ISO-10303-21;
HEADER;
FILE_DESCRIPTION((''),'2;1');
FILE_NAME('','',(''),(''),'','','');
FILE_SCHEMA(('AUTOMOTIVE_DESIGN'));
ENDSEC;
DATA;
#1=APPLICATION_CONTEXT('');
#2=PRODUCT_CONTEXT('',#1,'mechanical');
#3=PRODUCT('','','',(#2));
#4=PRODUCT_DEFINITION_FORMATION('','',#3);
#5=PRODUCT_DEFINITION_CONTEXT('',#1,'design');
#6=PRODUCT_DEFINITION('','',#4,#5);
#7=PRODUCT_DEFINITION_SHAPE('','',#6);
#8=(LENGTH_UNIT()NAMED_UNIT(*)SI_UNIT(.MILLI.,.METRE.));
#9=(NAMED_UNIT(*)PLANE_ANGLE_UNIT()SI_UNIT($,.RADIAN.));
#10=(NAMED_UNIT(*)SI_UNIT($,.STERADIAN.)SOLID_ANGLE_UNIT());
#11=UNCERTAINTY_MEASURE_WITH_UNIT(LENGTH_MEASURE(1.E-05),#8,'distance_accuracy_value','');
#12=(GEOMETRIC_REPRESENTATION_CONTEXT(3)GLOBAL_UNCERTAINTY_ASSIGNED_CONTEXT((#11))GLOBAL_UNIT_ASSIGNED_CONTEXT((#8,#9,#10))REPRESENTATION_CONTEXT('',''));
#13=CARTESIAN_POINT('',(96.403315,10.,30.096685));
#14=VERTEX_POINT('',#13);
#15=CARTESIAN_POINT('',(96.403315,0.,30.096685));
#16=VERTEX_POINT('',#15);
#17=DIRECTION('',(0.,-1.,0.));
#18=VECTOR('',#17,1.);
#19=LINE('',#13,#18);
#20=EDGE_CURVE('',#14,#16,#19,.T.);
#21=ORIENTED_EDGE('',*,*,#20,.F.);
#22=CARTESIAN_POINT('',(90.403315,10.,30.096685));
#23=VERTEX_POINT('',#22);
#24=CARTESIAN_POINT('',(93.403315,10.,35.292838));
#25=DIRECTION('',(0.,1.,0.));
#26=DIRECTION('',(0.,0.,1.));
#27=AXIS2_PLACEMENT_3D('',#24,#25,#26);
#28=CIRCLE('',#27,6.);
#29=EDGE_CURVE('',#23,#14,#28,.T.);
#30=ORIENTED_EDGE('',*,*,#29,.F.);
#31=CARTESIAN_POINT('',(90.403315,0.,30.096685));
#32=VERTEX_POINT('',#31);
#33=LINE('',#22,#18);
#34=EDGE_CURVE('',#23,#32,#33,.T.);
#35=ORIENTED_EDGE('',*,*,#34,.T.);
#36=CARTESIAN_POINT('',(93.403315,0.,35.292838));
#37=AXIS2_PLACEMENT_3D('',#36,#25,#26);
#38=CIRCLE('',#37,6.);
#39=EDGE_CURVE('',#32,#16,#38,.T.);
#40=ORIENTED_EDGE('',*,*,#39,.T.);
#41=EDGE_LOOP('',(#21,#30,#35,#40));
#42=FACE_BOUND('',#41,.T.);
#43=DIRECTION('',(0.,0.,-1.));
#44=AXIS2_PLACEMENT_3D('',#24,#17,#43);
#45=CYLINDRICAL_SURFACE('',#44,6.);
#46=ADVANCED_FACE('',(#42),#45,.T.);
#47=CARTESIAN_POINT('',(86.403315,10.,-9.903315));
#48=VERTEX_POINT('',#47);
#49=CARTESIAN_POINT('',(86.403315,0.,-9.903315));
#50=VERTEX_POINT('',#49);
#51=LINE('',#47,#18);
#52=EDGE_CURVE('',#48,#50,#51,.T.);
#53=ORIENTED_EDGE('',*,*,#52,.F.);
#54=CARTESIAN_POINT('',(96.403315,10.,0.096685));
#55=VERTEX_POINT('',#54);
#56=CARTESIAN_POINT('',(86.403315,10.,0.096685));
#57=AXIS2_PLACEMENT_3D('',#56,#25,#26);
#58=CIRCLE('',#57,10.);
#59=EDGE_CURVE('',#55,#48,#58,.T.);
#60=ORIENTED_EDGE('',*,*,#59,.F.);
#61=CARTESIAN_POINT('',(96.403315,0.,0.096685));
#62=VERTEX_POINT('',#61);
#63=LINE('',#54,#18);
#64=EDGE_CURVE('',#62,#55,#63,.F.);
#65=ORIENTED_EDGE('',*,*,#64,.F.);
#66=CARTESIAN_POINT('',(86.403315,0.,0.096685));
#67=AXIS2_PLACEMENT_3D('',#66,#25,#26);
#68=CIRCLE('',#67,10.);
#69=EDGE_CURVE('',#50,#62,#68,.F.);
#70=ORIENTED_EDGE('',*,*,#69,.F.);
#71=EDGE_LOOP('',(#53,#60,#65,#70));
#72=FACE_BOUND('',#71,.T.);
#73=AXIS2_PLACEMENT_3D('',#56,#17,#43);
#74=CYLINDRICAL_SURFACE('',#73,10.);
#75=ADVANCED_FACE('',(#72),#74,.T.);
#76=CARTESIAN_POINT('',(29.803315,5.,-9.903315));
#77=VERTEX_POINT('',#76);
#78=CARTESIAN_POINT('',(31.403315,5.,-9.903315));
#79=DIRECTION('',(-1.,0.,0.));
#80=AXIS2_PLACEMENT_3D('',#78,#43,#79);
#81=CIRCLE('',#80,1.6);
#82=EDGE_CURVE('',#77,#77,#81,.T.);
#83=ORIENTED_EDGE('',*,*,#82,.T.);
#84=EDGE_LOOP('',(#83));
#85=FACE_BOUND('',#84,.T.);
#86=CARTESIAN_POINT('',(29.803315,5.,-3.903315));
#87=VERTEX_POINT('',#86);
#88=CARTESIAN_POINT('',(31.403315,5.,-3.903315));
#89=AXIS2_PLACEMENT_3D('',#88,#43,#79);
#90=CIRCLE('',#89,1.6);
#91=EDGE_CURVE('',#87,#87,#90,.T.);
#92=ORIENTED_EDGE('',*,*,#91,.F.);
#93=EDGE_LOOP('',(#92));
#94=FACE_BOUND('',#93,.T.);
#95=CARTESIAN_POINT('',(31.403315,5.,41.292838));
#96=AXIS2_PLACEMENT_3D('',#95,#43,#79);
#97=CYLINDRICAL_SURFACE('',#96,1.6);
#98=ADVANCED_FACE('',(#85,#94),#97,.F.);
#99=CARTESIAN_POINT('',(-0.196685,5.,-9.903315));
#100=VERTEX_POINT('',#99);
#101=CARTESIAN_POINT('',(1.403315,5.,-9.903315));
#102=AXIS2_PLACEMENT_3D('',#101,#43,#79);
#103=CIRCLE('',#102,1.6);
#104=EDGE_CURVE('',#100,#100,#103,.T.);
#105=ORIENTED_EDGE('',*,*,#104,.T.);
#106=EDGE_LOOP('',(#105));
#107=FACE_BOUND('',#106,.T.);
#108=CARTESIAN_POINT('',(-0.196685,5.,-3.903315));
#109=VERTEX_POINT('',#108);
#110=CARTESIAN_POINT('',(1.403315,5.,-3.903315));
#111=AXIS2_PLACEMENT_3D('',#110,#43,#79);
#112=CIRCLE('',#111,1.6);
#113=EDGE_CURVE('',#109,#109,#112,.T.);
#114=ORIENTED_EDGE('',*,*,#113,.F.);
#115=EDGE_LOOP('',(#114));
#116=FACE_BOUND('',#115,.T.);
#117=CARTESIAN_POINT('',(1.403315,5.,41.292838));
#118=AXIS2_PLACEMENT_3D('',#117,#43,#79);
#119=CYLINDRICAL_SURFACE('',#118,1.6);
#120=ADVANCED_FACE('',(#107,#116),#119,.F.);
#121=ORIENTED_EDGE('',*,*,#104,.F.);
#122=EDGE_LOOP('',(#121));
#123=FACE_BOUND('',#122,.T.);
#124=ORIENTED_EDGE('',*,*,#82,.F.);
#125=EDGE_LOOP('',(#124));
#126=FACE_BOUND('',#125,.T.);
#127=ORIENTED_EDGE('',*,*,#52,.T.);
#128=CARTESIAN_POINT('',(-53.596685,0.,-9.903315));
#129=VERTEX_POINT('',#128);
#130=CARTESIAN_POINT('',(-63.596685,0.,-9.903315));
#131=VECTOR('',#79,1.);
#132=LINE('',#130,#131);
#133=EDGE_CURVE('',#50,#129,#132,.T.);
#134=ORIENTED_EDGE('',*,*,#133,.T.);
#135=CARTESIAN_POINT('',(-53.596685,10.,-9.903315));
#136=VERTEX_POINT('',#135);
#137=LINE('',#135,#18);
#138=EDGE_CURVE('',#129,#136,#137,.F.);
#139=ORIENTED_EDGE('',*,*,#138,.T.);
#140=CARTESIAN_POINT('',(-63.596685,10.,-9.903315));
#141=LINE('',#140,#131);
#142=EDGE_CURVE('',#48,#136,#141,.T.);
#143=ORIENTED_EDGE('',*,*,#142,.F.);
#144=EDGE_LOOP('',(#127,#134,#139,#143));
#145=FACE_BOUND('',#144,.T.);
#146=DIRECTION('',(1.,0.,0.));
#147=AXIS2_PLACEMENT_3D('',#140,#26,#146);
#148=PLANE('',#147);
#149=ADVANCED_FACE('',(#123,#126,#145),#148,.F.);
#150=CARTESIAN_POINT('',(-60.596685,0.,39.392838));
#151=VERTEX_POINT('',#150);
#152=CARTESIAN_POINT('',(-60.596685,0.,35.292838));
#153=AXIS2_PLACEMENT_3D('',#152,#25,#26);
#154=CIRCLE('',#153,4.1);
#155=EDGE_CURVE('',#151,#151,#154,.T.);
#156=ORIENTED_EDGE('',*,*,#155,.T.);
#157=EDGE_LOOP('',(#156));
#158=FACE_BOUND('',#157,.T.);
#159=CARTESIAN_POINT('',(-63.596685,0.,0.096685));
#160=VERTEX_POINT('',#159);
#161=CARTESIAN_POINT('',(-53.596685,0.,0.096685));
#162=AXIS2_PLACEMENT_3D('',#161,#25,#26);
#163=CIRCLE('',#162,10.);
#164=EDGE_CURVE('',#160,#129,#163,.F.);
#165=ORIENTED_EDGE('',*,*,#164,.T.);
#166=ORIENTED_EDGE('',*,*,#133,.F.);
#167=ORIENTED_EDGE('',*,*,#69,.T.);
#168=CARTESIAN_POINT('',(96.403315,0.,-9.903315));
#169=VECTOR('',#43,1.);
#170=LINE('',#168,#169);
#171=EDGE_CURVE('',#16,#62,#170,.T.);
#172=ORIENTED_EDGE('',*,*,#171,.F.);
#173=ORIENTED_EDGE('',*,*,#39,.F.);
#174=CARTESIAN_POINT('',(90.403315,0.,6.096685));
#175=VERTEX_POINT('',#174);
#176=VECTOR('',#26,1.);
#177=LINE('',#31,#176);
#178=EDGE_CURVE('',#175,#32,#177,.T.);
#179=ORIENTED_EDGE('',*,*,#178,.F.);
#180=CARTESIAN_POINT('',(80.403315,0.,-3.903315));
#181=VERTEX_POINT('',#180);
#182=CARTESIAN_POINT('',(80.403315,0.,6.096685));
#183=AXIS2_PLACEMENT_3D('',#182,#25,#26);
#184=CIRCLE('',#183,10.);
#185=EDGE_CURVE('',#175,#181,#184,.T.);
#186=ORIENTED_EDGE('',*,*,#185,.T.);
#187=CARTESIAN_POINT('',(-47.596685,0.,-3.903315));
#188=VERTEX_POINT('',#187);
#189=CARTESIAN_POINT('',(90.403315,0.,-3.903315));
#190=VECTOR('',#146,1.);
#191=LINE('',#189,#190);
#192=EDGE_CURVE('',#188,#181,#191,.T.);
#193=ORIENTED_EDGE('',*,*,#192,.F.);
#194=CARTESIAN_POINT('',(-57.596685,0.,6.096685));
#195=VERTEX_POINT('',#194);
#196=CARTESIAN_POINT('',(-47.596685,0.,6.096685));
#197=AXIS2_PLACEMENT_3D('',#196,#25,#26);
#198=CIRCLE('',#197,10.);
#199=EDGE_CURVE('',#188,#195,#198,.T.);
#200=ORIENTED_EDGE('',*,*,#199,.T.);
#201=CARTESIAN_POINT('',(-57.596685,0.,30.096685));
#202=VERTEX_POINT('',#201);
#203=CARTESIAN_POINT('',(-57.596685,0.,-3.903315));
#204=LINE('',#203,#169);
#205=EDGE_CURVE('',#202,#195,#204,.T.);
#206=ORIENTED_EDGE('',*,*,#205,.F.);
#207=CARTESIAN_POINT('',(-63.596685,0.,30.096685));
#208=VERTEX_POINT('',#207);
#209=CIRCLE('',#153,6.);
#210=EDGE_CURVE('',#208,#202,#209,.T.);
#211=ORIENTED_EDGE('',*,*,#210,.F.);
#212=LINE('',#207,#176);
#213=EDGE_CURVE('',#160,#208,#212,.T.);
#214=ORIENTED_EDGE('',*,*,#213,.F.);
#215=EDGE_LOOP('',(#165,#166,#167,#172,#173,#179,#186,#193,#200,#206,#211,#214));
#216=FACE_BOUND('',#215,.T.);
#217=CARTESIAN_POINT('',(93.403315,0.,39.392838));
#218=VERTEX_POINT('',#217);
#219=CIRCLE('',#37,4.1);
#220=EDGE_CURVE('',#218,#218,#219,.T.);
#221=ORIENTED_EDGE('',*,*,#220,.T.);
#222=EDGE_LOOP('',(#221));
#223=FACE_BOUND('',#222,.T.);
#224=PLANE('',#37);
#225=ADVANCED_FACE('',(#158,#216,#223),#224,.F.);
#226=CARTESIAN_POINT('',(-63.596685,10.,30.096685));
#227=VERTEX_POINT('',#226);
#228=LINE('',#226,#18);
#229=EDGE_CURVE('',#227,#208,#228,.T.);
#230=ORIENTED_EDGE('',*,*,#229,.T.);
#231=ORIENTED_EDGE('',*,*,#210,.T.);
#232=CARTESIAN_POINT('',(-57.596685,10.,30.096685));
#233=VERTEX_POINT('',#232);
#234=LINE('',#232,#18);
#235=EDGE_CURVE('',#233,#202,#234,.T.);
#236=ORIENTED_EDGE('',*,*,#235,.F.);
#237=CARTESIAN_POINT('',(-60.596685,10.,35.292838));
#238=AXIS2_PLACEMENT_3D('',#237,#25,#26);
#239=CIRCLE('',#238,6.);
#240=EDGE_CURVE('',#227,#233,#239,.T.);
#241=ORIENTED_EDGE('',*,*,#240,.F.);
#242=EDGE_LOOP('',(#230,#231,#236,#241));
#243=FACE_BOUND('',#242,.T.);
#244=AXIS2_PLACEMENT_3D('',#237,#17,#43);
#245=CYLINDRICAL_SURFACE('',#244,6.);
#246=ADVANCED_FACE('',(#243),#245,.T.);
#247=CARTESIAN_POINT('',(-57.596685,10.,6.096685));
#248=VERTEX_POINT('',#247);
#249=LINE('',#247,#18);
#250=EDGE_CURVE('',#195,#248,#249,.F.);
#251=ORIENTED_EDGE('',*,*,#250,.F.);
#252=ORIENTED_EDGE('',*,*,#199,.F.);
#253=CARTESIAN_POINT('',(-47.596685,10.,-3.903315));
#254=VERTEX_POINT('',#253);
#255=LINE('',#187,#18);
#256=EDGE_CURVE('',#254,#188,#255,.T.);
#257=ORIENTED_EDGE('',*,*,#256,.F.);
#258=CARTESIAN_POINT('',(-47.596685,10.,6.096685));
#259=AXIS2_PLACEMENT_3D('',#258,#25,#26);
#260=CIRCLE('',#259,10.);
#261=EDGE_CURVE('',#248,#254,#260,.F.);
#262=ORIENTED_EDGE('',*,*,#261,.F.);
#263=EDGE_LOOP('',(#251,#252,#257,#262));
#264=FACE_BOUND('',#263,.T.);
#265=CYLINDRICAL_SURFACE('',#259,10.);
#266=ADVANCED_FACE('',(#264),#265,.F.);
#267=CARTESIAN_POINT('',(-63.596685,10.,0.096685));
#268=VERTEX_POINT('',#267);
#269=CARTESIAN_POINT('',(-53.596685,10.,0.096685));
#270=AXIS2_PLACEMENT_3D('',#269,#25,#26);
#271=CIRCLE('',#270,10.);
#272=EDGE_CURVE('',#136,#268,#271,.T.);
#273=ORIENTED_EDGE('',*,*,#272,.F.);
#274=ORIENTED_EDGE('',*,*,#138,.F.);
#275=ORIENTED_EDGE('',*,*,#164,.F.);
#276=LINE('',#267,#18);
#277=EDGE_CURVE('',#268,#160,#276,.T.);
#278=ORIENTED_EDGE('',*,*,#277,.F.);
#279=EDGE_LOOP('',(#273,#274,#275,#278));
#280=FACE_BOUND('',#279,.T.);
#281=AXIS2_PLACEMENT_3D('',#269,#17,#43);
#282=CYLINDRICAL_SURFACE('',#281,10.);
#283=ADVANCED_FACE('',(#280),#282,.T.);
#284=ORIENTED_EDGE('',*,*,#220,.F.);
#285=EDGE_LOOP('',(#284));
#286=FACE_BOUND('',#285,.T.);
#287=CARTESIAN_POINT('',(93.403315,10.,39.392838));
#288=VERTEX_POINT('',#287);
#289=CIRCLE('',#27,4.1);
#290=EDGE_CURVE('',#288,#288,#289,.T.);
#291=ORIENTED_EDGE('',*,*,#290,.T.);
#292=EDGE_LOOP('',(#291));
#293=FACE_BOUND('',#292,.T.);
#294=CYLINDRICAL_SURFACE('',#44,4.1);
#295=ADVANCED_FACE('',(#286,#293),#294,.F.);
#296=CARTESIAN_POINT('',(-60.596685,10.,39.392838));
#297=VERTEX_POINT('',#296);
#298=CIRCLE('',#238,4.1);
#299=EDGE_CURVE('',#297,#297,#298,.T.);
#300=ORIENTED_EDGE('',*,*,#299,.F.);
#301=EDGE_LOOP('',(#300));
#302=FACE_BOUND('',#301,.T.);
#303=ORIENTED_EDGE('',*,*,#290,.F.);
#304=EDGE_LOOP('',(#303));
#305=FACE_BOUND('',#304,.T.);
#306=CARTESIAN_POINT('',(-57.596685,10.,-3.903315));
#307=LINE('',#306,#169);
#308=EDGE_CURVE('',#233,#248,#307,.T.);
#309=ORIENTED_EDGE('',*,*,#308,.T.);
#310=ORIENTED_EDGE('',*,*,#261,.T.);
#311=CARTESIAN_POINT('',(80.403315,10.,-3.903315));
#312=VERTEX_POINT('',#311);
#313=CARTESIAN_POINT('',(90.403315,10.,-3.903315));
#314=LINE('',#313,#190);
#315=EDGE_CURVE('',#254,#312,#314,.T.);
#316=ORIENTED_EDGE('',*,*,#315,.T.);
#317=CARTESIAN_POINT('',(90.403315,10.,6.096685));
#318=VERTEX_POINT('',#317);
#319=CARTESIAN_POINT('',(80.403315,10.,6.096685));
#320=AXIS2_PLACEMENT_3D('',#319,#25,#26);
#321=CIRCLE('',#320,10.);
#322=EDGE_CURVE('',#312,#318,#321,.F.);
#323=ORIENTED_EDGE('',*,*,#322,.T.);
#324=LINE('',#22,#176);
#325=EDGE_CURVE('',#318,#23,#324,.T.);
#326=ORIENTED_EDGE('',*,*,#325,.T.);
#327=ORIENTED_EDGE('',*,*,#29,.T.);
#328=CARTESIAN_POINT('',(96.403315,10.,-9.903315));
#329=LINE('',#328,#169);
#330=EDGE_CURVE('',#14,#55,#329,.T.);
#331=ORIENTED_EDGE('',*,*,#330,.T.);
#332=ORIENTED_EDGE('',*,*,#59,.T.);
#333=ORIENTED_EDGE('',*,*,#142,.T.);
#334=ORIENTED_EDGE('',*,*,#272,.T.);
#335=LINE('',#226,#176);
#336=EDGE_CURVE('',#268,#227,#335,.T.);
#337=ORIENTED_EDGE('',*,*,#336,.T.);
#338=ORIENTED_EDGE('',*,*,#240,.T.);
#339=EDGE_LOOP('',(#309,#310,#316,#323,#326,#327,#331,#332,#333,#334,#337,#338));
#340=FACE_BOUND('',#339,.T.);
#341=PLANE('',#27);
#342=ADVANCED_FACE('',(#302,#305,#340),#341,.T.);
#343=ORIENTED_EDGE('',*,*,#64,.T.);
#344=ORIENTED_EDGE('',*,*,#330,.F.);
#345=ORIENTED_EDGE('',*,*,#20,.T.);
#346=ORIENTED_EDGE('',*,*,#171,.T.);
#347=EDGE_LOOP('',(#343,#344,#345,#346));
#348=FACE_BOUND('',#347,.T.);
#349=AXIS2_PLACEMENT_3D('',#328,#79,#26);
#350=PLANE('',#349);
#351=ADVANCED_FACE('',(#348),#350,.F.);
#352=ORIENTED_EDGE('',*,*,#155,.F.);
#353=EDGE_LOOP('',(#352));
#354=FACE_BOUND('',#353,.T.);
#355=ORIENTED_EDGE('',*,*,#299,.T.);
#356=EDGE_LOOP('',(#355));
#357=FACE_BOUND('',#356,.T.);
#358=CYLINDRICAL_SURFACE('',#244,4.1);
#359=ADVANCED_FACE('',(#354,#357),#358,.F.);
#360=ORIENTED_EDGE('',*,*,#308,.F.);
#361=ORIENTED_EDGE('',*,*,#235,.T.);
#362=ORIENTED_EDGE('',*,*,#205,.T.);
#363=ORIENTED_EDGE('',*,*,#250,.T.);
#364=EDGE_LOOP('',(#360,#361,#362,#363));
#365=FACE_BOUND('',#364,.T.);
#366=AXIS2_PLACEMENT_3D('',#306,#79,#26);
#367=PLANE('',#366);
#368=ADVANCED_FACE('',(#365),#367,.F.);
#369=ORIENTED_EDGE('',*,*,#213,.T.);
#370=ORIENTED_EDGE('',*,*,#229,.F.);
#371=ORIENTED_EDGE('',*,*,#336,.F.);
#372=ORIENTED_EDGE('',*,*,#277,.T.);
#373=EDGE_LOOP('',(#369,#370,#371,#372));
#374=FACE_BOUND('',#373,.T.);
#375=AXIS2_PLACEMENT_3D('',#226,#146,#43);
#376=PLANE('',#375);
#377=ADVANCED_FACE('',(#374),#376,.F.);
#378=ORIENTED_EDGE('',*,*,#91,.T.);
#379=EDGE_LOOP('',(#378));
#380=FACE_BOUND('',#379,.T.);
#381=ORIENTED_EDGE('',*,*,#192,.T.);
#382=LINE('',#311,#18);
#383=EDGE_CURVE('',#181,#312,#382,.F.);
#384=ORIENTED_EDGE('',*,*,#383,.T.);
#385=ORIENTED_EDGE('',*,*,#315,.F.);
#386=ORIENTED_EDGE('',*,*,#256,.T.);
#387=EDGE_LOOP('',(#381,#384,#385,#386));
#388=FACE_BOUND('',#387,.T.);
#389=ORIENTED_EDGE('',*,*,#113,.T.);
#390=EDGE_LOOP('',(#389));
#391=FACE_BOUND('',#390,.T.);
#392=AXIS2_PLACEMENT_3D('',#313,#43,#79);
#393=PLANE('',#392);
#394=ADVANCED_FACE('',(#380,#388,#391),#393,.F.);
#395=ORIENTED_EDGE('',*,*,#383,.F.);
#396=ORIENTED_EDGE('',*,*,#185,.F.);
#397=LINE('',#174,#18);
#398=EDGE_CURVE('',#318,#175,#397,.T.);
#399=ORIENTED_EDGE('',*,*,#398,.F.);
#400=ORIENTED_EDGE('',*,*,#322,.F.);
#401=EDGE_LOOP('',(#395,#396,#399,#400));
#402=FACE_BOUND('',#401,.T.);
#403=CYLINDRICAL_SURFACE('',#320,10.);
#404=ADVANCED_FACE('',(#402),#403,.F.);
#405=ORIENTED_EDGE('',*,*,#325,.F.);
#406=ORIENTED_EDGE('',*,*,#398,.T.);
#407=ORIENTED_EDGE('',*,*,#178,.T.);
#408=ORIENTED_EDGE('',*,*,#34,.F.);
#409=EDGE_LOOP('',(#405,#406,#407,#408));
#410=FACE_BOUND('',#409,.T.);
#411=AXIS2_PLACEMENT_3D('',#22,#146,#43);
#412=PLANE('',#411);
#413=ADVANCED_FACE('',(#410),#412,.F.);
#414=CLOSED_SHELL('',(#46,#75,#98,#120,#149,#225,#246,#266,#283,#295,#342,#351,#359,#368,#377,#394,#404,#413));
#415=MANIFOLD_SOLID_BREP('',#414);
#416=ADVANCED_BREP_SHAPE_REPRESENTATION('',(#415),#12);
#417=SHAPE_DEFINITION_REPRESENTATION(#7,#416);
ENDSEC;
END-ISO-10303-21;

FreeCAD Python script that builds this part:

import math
import FreeCAD as App
import Part
import Sketcher
from FreeCAD import Vector
Q = App.Units.Quantity


def edges_at(feature, points):
    """Names of the edges that pass closest to the given points."""
    edges = feature.Shape.Edges
    near = lambda p: min(range(len(edges)), key=lambda i: edges[i].distToShape(Part.Vertex(*p))[0])
    return sorted({f"Edge{near(p) + 1}" for p in points})

doc = App.newDocument("Part")
params = doc.addObject("Spreadsheet::Sheet", "Params")
for row, (alias, value) in enumerate([
    ("sketch1_radius", "6 mm"),
    ("sketch1_diameter", "8.2 mm"),
    ("sketch1_width", "160 mm"),
    ("sketch1_width2", "148 mm"),
    ("sketch1_height", "40 mm"),
    ("pad1_length", "10 mm"),
    ("sketch2_diameter", "3.2 mm"),
    ("fillet_radius", "10 mm"),
], start=1):
    params.set(f"A{row}", alias)
    params.set(f"B{row}", "=" + value)
    params.setAlias(f"B{row}", alias)

body = doc.addObject("PartDesign::Body", "Body")

sketch1 = body.newObject("Sketcher::SketchObject", "Sketch")
sketch1.AttachmentSupport = (doc.getObject("XZ_Plane"), [""])
sketch1.MapMode = "FlatFace"
sketch1.addGeometry(Part.LineSegment(Vector(96.403315, -9.903315, 0), Vector(-63.596685, -9.903315, 0)), False)
sketch1.addGeometry(Part.LineSegment(Vector(-63.596685, -9.903315, 0), Vector(-63.596685, 30.096685, 0)), False)
sketch1.addGeometry(Part.ArcOfCircle(Part.Circle(Vector(-60.596685, 35.292838, 0), Vector(0, 0, 1), 6), math.radians(-60), math.radians(240)), False)
sketch1.addGeometry(Part.LineSegment(Vector(-57.596685, 30.096685, 0), Vector(-57.596685, -3.903315, 0)), False)
sketch1.addGeometry(Part.LineSegment(Vector(-57.596685, -3.903315, 0), Vector(90.403315, -3.903315, 0)), False)
sketch1.addGeometry(Part.LineSegment(Vector(90.403315, -3.903315, 0), Vector(90.403315, 30.096685, 0)), False)
sketch1.addGeometry(Part.ArcOfCircle(Part.Circle(Vector(93.403315, 35.292838, 0), Vector(0, 0, 1), 6), math.radians(-60), math.radians(240)), False)
sketch1.addGeometry(Part.LineSegment(Vector(96.403315, 30.096685, 0), Vector(96.403315, -9.903315, 0)), False)
sketch1.addGeometry(Part.Circle(Vector(93.403315, 35.292838, 0), Vector(0, 0, 1), 4.1), False)
sketch1.addGeometry(Part.Circle(Vector(-60.596685, 35.292838, 0), Vector(0, 0, 1), 4.1), False)
sketch1.addConstraint(Sketcher.Constraint("Coincident", 0, 2, 1, 1))
sketch1.addConstraint(Sketcher.Constraint("Coincident", 1, 2, 2, 2))
sketch1.addConstraint(Sketcher.Constraint("Coincident", 2, 1, 3, 1))
sketch1.addConstraint(Sketcher.Constraint("Coincident", 3, 2, 4, 1))
sketch1.addConstraint(Sketcher.Constraint("Coincident", 4, 2, 5, 1))
sketch1.addConstraint(Sketcher.Constraint("Coincident", 5, 2, 6, 2))
sketch1.addConstraint(Sketcher.Constraint("Coincident", 6, 1, 7, 1))
sketch1.addConstraint(Sketcher.Constraint("Coincident", 7, 2, 0, 1))
sketch1.addConstraint(Sketcher.Constraint("Horizontal", 0))
sketch1.addConstraint(Sketcher.Constraint("Vertical", 1))
sketch1.addConstraint(Sketcher.Constraint("Vertical", 3))
sketch1.addConstraint(Sketcher.Constraint("Horizontal", 4))
sketch1.addConstraint(Sketcher.Constraint("Vertical", 5))
sketch1.addConstraint(Sketcher.Constraint("Vertical", 7))
sketch1.addConstraint(Sketcher.Constraint("Coincident", 8, 3, 6, 3))
sketch1.addConstraint(Sketcher.Constraint("Coincident", 9, 3, 2, 3))
sketch1.addConstraint(Sketcher.Constraint("Equal", 2, 6))
sketch1.addConstraint(Sketcher.Constraint("Equal", 8, 9))
sketch1.addConstraint(Sketcher.Constraint("Horizontal", 2, 3, 6, 3))
sketch1.addConstraint(Sketcher.Constraint("Horizontal", 1, 2, 2, 1))
sketch1.addConstraint(Sketcher.Constraint("Horizontal", 2, 1, 5, 2))
sketch1.addConstraint(Sketcher.Constraint("Horizontal", 5, 2, 6, 1))
sketch1.addConstraint(Sketcher.Constraint("Radius", 2, Q("6 mm")))
sketch1.addConstraint(Sketcher.Constraint("Diameter", 8, Q("8.2 mm")))
sketch1.addConstraint(Sketcher.Constraint("DistanceX", 0, 2, 0, 1, Q("160 mm")))
sketch1.addConstraint(Sketcher.Constraint("DistanceX", 4, 1, 4, 2, Q("148 mm")))
sketch1.addConstraint(Sketcher.Constraint("DistanceY", 1, 1, 1, 2, Q("40 mm")))
sketch1.addConstraint(Sketcher.Constraint("DistanceY", 3, 2, 3, 1, Q("34 mm")))
sketch1.addConstraint(Sketcher.Constraint("DistanceX", 2, 3, -1, 1, Q("60.596685 mm")))
sketch1.addConstraint(Sketcher.Constraint("DistanceY", -1, 1, 2, 3, Q("35.292838 mm")))
sketch1.setExpression("Constraints[22]", "Params.sketch1_radius")
sketch1.setExpression("Constraints[23]", "Params.sketch1_diameter")
sketch1.setExpression("Constraints[24]", "Params.sketch1_width")
sketch1.setExpression("Constraints[25]", "Params.sketch1_width2")
sketch1.setExpression("Constraints[26]", "Params.sketch1_height")
pad1 = body.newObject("PartDesign::Pad", "Pad")
pad1.Profile = sketch1
pad1.setExpression("Length", "Params.pad1_length")
pad1.Reversed = True

sketch2 = body.newObject("Sketcher::SketchObject", "Sketch001")
sketch2.AttachmentSupport = (doc.getObject("XY_Plane"), [""])
sketch2.MapMode = "FlatFace"
sketch2.AttachmentOffset = App.Placement(Vector(0, 0, -9.903315), App.Rotation())
sketch2.addGeometry(Part.Circle(Vector(1.403315, 5, 0), Vector(0, 0, 1), 1.6), False)
sketch2.addGeometry(Part.Circle(Vector(31.403315, 5, 0), Vector(0, 0, 1), 1.6), False)
sketch2.addConstraint(Sketcher.Constraint("Equal", 0, 1))
sketch2.addConstraint(Sketcher.Constraint("Horizontal", 0, 3, 1, 3))
sketch2.addConstraint(Sketcher.Constraint("Diameter", 0, Q("3.2 mm")))
sketch2.addConstraint(Sketcher.Constraint("DistanceY", -1, 1, 0, 3, Q("5 mm")))
sketch2.addConstraint(Sketcher.Constraint("DistanceX", 0, 3, 1, 3, Q("30 mm")))
sketch2.addConstraint(Sketcher.Constraint("DistanceX", -1, 1, 0, 3, Q("1.403315 mm")))
sketch2.setExpression("Constraints[2]", "Params.sketch2_diameter")
pocket1 = body.newObject("PartDesign::Pocket", "Pocket")
pocket1.Profile = sketch2
pocket1.Type = "ThroughAll"
pocket1.Reversed = True
doc.recompute()

fillet = body.newObject("PartDesign::Fillet", "Fillet")
fillet.Base = (pocket1, edges_at(pocket1, [
    (-63.597, 5, -9.903),
    (96.403, 5, -9.903),
    (90.403, 5, -3.903),
    (-57.597, 5, -3.903),
]))
fillet.setExpression("Radius", "Params.fillet_radius")

doc.recompute()
